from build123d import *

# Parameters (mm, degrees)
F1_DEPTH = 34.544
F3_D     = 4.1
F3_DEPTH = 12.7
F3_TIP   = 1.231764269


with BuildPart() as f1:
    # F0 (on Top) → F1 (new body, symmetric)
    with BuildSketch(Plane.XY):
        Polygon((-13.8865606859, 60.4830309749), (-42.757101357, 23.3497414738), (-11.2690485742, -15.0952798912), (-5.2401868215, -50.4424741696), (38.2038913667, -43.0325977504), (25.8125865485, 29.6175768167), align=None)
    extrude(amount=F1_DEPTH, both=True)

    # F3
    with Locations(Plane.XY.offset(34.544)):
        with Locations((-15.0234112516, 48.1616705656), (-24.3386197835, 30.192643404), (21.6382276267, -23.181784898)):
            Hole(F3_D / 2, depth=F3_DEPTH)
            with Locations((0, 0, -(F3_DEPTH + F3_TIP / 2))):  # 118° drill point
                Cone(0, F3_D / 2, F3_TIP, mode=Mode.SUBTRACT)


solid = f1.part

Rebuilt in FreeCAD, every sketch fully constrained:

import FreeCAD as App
import Part
import Sketcher

V = App.Vector

doc = App.newDocument("Part")
params = doc.addObject("Spreadsheet::Sheet", "Params")
for row, (alias, value) in enumerate([
    ("pad1_length", "2.72 in"),
    ("hole_diameter", "4.1 mm"),
    ("hole_depth", "0.5 in"),
], start=1):
    params.set(f"A{row}", alias)
    params.set(f"B{row}", "=" + value)
    params.setAlias(f"B{row}", alias)

body = doc.addObject("PartDesign::Body", "Body")

# Sketch on XY plane
sketch1 = body.newObject("Sketcher::SketchObject", "Sketch")
sketch1.AttachmentSupport = (doc.getObject("XY_Plane"), [""])
sketch1.MapMode = "FlatFace"
sketch1.addGeometry([
    Part.LineSegment(V(-13.886561, 60.483031, 0), V(-42.757101, 23.349741, 0)),  # 0
    Part.LineSegment(V(-42.757101, 23.349741, 0), V(-11.269049, -15.09528, 0)),  # 1
    Part.LineSegment(V(-11.269049, -15.09528, 0), V(-5.240187, -50.442474, 0)),  # 2
    Part.LineSegment(V(-5.240187, -50.442474, 0), V(38.203891, -43.032598, 0)),  # 3
    Part.LineSegment(V(38.203891, -43.032598, 0), V(25.812587, 29.617577, 0)),  # 4
    Part.LineSegment(V(25.812587, 29.617577, 0), V(-13.886561, 60.483031, 0)),  # 5
], False)
sketch1.addConstraint([
    Sketcher.Constraint("Coincident", 0, 2, 1, 1),
    Sketcher.Constraint("Coincident", 1, 2, 2, 1),
    Sketcher.Constraint("Coincident", 2, 2, 3, 1),
    Sketcher.Constraint("Coincident", 3, 2, 4, 1),
    Sketcher.Constraint("Coincident", 4, 2, 5, 1),
    Sketcher.Constraint("Coincident", 5, 2, 0, 1),
    Sketcher.Constraint("Perpendicular", 2, 3),
    Sketcher.Constraint("Perpendicular", 3, 4),
    Sketcher.Constraint("Perpendicular", 0, 5),
    Sketcher.Constraint("DistanceX", 0, 2, -1, 1, 42.757101),
    Sketcher.Constraint("DistanceY", -1, 1, 0, 2, 23.349741),
    Sketcher.Constraint("DistanceX", 1, 2, -1, 1, 11.269049),
    Sketcher.Constraint("DistanceY", 1, 2, -1, 1, 15.09528),
    Sketcher.Constraint("DistanceX", -1, 1, 3, 2, 38.203891),
    Sketcher.Constraint("DistanceX", 5, 2, -1, 1, 13.886561),
    Sketcher.Constraint("DistanceY", -1, 1, 5, 2, 60.483031),
    Sketcher.Constraint("DistanceX", 1, 2, 2, 2, 6.028862),
    Sketcher.Constraint("DistanceY", 3, 2, 0, 2, 66.382339),
])
pad1 = body.newObject("PartDesign::Pad", "Pad")
pad1.Profile = sketch1
pad1.setExpression("Length", "Params.pad1_length")
pad1.Midplane = True

# Sketch on XY plane
sketch2 = body.newObject("Sketcher::SketchObject", "Sketch001")
sketch2.AttachmentSupport = (doc.getObject("XY_Plane"), [""])
sketch2.MapMode = "FlatFace"
sketch2.AttachmentOffset = App.Placement(V(0, 0, 1.36 * 25.4), App.Rotation())
sketch2.addGeometry([
    Part.Circle(V(-15.023411, 48.161671, 0), V(0, 0, 1), 2.05),
    Part.Circle(V(-24.33862, 30.192643, 0), V(0, 0, 1), 2.05),
    Part.Circle(V(21.638228, -23.181785, 0), V(0, 0, 1), 2.05),
], False)
sketch2.addConstraint([
    Sketcher.Constraint("Equal", 0, 1),
    Sketcher.Constraint("Equal", 1, 2),
    Sketcher.Constraint("Diameter", 0, 4.1),
    Sketcher.Constraint("DistanceX", 0, 3, -1, 1, 15.023411),
    Sketcher.Constraint("DistanceY", -1, 1, 0, 3, 48.161671),
    Sketcher.Constraint("DistanceX", 1, 3, -1, 1, 24.33862),
    Sketcher.Constraint("DistanceY", 2, 3, 1, 3, 53.374428),
    Sketcher.Constraint("DistanceX", 0, 3, 2, 3, 36.661639),
    Sketcher.Constraint("DistanceY", -1, 1, 1, 3, 30.192643),
])
doc.recompute()
hole = body.newObject("PartDesign::Hole", "Hole")
hole.Profile = sketch2
hole.ThreadType = "None"
hole.setExpression("Diameter", "Params.hole_diameter")
hole.DepthType = "Dimension"
hole.setExpression("Depth", "Params.hole_depth")
hole.DrillPoint = "Angled"
hole.DrillPointAngle = 118

doc.recompute()
